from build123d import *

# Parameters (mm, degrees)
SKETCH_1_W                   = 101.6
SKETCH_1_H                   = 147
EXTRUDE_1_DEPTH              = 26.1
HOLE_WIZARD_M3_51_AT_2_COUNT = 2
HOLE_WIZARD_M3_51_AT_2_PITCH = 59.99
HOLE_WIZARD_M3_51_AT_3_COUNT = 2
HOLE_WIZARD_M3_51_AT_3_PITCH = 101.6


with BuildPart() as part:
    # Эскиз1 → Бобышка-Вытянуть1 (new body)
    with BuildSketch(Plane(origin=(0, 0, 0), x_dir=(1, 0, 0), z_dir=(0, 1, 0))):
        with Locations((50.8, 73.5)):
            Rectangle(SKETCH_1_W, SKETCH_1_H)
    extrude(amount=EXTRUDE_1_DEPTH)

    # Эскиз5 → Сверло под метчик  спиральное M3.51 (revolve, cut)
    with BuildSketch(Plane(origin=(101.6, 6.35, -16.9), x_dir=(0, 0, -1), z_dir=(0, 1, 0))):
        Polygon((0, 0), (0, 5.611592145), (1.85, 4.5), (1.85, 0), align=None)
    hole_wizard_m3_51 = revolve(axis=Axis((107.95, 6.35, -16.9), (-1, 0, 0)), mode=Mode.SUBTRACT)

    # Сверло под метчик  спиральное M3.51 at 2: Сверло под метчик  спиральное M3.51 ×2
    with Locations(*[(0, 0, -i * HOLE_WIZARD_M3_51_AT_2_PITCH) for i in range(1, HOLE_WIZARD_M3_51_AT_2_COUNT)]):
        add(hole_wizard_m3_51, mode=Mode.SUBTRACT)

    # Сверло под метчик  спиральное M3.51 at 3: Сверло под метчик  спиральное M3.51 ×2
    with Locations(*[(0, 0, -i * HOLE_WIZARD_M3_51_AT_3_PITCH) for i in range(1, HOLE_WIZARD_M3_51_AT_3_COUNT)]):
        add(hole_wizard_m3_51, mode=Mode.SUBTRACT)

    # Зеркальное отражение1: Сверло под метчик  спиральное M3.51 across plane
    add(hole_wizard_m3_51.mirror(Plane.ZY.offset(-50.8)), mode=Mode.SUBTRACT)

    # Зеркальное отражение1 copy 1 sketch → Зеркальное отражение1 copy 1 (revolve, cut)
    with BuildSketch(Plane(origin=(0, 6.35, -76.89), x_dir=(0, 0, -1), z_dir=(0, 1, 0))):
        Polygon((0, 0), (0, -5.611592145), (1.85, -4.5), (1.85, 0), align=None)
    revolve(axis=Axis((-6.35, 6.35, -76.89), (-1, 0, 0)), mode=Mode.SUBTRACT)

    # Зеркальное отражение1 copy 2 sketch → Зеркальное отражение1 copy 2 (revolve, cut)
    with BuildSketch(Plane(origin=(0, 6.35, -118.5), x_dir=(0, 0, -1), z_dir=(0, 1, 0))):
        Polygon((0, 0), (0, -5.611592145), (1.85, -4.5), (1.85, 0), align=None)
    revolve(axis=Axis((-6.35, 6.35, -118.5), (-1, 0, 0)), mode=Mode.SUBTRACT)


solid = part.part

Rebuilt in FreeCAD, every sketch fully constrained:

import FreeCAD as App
import Part
import Sketcher
from FreeCAD import Vector
Q = App.Units.Quantity


def add_polygon(sketch, points):
    """Adds a closed chain of lines whose ends are joined by coincident constraints."""
    first, n = sketch.GeometryCount, len(points)
    for a, b in zip(points, points[1:] + points[:1]):
        sketch.addGeometry(Part.LineSegment(App.Vector(*a, 0), App.Vector(*b, 0)), False)
    for i in range(n):
        sketch.addConstraint(Sketcher.Constraint("Coincident", first + i, 2, first + (i + 1) % n, 1))

doc = App.newDocument("Part")
body = doc.addObject("PartDesign::Body", "Body")

# Sketch on XZ plane
sketch1 = body.newObject("Sketcher::SketchObject", "Sketch")
sketch1.AttachmentSupport = (doc.getObject("XZ_Plane"), [""])
sketch1.MapMode = "FlatFace"
add_polygon(sketch1, [(0, -147), (0, 0), (102, 0), (102, -147)])  # lines 0-3
sketch1.addConstraint([
    Sketcher.Constraint("Vertical", 0),
    Sketcher.Constraint("Horizontal", 1),
    Sketcher.Constraint("Vertical", 2),
    Sketcher.Constraint("Horizontal", 3),
    Sketcher.Constraint("Coincident", 0, 2, -1, 1),
    Sketcher.Constraint("DistanceY", 0, 1, 0, 2, 147.0),
    Sketcher.Constraint("DistanceX", 1, 1, 1, 2, 101.6),
])
pad1 = body.newObject("PartDesign::Pad", "Pad")
pad1.Profile = sketch1
pad1.Length = 26.1
pad1.Reversed = True

# Sketch on XZ plane
sketch2 = body.newObject("Sketcher::SketchObject", "Sketch001")
sketch2.AttachmentSupport = (doc.getObject("XZ_Plane"), [""])
sketch2.MapMode = "FlatFace"
sketch2.AttachmentOffset = App.Placement(Vector(0, 0, -6.35), App.Rotation())
add_polygon(sketch2, [(96, -16.9), (101.6, -16.9), (101.6, -18.8), (97.1, -18.8)])  # lines 0-3
sketch2.addGeometry(Part.LineSegment(Vector(101.6, -16.9, 0), Vector(96, -16.9, 0)), True)  # axis
sketch2.addConstraint([
    Sketcher.Constraint("Horizontal", 0),
    Sketcher.Constraint("Vertical", 1),
    Sketcher.Constraint("Horizontal", 2),
    Sketcher.Constraint("Horizontal", 4),
    Sketcher.Constraint("Coincident", 4, 1, 0, 2),
    Sketcher.Constraint("Equal", 0, 4),
    Sketcher.Constraint("Angle", 3, Q("121 deg")),
    Sketcher.Constraint("DistanceX", 2, 2, 2, 1, 4.5),
    Sketcher.Constraint("DistanceY", 1, 2, 1, 1, 1.85),
    Sketcher.Constraint("DistanceX", -1, 1, 0, 2, 101.6),
    Sketcher.Constraint("DistanceY", 0, 2, -1, 1, 16.9),
])
groove = body.newObject("PartDesign::Groove", "Groove")
groove.Profile = sketch2
groove.ReferenceAxis = (sketch2, ["Axis0"])
groove.Angle = 360
doc.recompute()

linearpattern = body.newObject("PartDesign::LinearPattern", "LinearPattern")
linearpattern.Originals = [groove]
linearpattern.Direction = (doc.getObject("Z_Axis"), [""])
linearpattern.Mode = "offset"
linearpattern.Offset = 59.99
linearpattern.Occurrences = 2
linearpattern.Reversed = True
body.Tip = linearpattern
doc.recompute()

linearpattern2 = body.newObject("PartDesign::LinearPattern", "LinearPattern001")
linearpattern2.Originals = [groove]
linearpattern2.Direction = (doc.getObject("Z_Axis"), [""])
linearpattern2.Mode = "offset"
linearpattern2.Offset = 101.6
linearpattern2.Occurrences = 2
linearpattern2.Reversed = True
body.Tip = linearpattern2
doc.recompute()

datumplane = body.newObject("PartDesign::Plane", "DatumPlane")
datumplane.AttachmentSupport = (doc.getObject("YZ_Plane"), [""])
datumplane.MapMode = "FlatFace"
datumplane.AttachmentOffset = App.Placement(Vector(0, 0, 50.8), App.Rotation())
mirrored = body.newObject("PartDesign::Mirrored", "Mirrored")
mirrored.Originals = [groove]
mirrored.MirrorPlane = (datumplane, [""])
body.Tip = mirrored

# Sketch on XZ plane
sketch3 = body.newObject("Sketcher::SketchObject", "Sketch002")
sketch3.AttachmentSupport = (doc.getObject("XZ_Plane"), [""])
sketch3.MapMode = "FlatFace"
sketch3.AttachmentOffset = App.Placement(Vector(0, 0, -6.35), App.Rotation())
add_polygon(sketch3, [(0, -76.9), (5.6, -76.9), (4.5, -78.7), (0, -78.7)])  # lines 0-3
sketch3.addGeometry(Part.LineSegment(Vector(5.6, -76.9, 0), Vector(0, -76.9, 0)), True)  # axis
sketch3.addConstraint([
    Sketcher.Constraint("Horizontal", 0),
    Sketcher.Constraint("Horizontal", 2),
    Sketcher.Constraint("Vertical", 3),
    Sketcher.Constraint("Horizontal", 4),
    Sketcher.Constraint("Coincident", 4, 1, 0, 2),
    Sketcher.Constraint("PointOnObject", 2, 2, -2),
    Sketcher.Constraint("PointOnObject", 4, 2, -2),
    Sketcher.Constraint("Angle", 1, Q("-121 deg")),
    Sketcher.Constraint("DistanceX", 2, 2, 2, 1, 4.5),
    Sketcher.Constraint("DistanceY", 3, 1, 3, 2, 1.85),
    Sketcher.Constraint("DistanceY", 0, 2, -1, 1, 76.89),
])
groove2 = body.newObject("PartDesign::Groove", "Groove001")
groove2.Profile = sketch3
groove2.ReferenceAxis = (sketch3, ["Axis0"])
groove2.Angle = 360

# Sketch on XZ plane
sketch4 = body.newObject("Sketcher::SketchObject", "Sketch003")
sketch4.AttachmentSupport = (doc.getObject("XZ_Plane"), [""])
sketch4.MapMode = "FlatFace"
sketch4.AttachmentOffset = App.Placement(Vector(0, 0, -6.35), App.Rotation())
add_polygon(sketch4, [(0, -118.5), (5.6, -118.5), (4.5, -120.3), (0, -120.3)])  # lines 0-3
sketch4.addGeometry(Part.LineSegment(Vector(5.6, -118.5, 0), Vector(0, -118.5, 0)), True)  # axis
sketch4.addConstraint([
    Sketcher.Constraint("Horizontal", 0),
    Sketcher.Constraint("Horizontal", 2),
    Sketcher.Constraint("Vertical", 3),
    Sketcher.Constraint("Horizontal", 4),
    Sketcher.Constraint("Coincident", 4, 1, 0, 2),
    Sketcher.Constraint("PointOnObject", 2, 2, -2),
    Sketcher.Constraint("PointOnObject", 4, 2, -2),
    Sketcher.Constraint("Angle", 1, Q("-121 deg")),
    Sketcher.Constraint("DistanceX", 2, 2, 2, 1, 4.5),
    Sketcher.Constraint("DistanceY", 3, 1, 3, 2, 1.85),
    Sketcher.Constraint("DistanceY", 0, 2, -1, 1, 118.5),
])
groove3 = body.newObject("PartDesign::Groove", "Groove002")
groove3.Profile = sketch4
groove3.ReferenceAxis = (sketch4, ["Axis0"])
groove3.Angle = 360

doc.recompute()
